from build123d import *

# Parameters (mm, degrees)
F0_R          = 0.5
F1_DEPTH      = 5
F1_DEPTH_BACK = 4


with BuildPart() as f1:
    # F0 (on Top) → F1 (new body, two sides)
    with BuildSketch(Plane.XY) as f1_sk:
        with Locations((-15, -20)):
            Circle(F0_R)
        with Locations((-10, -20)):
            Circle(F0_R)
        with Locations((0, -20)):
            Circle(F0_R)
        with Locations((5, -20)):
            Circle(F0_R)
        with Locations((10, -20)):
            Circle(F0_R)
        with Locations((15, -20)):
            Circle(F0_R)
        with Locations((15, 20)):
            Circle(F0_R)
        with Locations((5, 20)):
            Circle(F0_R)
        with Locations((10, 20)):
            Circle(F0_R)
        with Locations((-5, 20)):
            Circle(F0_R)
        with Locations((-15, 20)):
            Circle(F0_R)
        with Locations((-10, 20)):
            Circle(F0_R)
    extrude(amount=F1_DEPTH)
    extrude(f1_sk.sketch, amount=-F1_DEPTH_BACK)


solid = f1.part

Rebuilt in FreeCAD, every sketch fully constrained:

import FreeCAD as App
import Part
import Sketcher
Q = App.Units.Quantity

doc = App.newDocument("Part")
body = doc.addObject("PartDesign::Body", "Body")
body.AllowCompound = True

# Sketch on XY plane
sketch1 = doc.addObject("Sketcher::SketchObject", "Sketch")
body.addObject(sketch1)
sketch1.AttachmentSupport = (doc.XY_Plane, [""])
sketch1.MapMode = "FlatFace"
sketch1.addGeometry([
    Part.Circle(App.Vector(-15, -20, 0), App.Vector(0, 0, 1), 0.5),  # 0
    Part.Circle(App.Vector(-10, -20, 0), App.Vector(0, 0, 1), 0.5),  # 1
    Part.Circle(App.Vector(0, -20, 0), App.Vector(0, 0, 1), 0.5),  # 2
    Part.Circle(App.Vector(5, -20, 0), App.Vector(0, 0, 1), 0.5),  # 3
    Part.Circle(App.Vector(10, -20, 0), App.Vector(0, 0, 1), 0.5),  # 4
    Part.Circle(App.Vector(15, -20, 0), App.Vector(0, 0, 1), 0.5),  # 5
    Part.Circle(App.Vector(15, 20, 0), App.Vector(0, 0, 1), 0.5),  # 6
    Part.Circle(App.Vector(5, 20, 0), App.Vector(0, 0, 1), 0.5),  # 7
    Part.Circle(App.Vector(10, 20, 0), App.Vector(0, 0, 1), 0.5),  # 8
    Part.Circle(App.Vector(-5, 20, 0), App.Vector(0, 0, 1), 0.5),  # 9
    Part.Circle(App.Vector(-15, 20, 0), App.Vector(0, 0, 1), 0.5),  # 10
    Part.Circle(App.Vector(-10, 20, 0), App.Vector(0, 0, 1), 0.5),  # 11
], False)
sketch1.addConstraint([
    Sketcher.Constraint("Equal", 0, 1),
    Sketcher.Constraint("Equal", 1, 2),
    Sketcher.Constraint("Equal", 2, 3),
    Sketcher.Constraint("Equal", 3, 4),
    Sketcher.Constraint("Equal", 4, 5),
    Sketcher.Constraint("Equal", 5, 6),
    Sketcher.Constraint("Equal", 6, 7),
    Sketcher.Constraint("Equal", 7, 8),
    Sketcher.Constraint("Equal", 8, 9),
    Sketcher.Constraint("Equal", 9, 10),
    Sketcher.Constraint("Equal", 10, 11),
    Sketcher.Constraint("Symmetric", 0, 3, 6, 3, -1, 1),
    Sketcher.Constraint("Symmetric", 1, 3, 8, 3, -1, 1),
    Sketcher.Constraint("Symmetric", 3, 3, 9, 3, -1, 1),
    Sketcher.Constraint("Symmetric", 5, 3, 10, 3, -1, 1),
    Sketcher.Constraint("Symmetric", 4, 3, 11, 3, -1, 1),
    Sketcher.Constraint("Symmetric", 1, 3, 4, 3, -2),
    Sketcher.Constraint("Symmetric", 0, 3, 5, 3, -2),
    Sketcher.Constraint("Symmetric", 7, 3, 9, 3, -2),
    Sketcher.Constraint("PointOnObject", 2, 3, -2),
    Sketcher.Constraint("Horizontal", 0, 3, 1, 3),
    Sketcher.Constraint("Horizontal", 1, 3, 2, 3),
    Sketcher.Constraint("Horizontal", 2, 3, 3, 3),
    Sketcher.Constraint("Diameter", 0, Q("1 mm")),
    Sketcher.Constraint("DistanceX", 0, 3, -1, 1, Q("15 mm")),
    Sketcher.Constraint("DistanceY", 0, 3, -1, 1, Q("20 mm")),
    Sketcher.Constraint("DistanceX", 1, 3, -1, 1, Q("10 mm")),
    Sketcher.Constraint("DistanceX", -1, 1, 3, 3, Q("5 mm")),
])
pad1 = doc.addObject("PartDesign::Pad", "Pad")
body.addObject(pad1)
pad1.Profile = sketch1
pad1.Type = "TwoLengths"
pad1.Length = 5
pad1.Length2 = 4

doc.recompute()
